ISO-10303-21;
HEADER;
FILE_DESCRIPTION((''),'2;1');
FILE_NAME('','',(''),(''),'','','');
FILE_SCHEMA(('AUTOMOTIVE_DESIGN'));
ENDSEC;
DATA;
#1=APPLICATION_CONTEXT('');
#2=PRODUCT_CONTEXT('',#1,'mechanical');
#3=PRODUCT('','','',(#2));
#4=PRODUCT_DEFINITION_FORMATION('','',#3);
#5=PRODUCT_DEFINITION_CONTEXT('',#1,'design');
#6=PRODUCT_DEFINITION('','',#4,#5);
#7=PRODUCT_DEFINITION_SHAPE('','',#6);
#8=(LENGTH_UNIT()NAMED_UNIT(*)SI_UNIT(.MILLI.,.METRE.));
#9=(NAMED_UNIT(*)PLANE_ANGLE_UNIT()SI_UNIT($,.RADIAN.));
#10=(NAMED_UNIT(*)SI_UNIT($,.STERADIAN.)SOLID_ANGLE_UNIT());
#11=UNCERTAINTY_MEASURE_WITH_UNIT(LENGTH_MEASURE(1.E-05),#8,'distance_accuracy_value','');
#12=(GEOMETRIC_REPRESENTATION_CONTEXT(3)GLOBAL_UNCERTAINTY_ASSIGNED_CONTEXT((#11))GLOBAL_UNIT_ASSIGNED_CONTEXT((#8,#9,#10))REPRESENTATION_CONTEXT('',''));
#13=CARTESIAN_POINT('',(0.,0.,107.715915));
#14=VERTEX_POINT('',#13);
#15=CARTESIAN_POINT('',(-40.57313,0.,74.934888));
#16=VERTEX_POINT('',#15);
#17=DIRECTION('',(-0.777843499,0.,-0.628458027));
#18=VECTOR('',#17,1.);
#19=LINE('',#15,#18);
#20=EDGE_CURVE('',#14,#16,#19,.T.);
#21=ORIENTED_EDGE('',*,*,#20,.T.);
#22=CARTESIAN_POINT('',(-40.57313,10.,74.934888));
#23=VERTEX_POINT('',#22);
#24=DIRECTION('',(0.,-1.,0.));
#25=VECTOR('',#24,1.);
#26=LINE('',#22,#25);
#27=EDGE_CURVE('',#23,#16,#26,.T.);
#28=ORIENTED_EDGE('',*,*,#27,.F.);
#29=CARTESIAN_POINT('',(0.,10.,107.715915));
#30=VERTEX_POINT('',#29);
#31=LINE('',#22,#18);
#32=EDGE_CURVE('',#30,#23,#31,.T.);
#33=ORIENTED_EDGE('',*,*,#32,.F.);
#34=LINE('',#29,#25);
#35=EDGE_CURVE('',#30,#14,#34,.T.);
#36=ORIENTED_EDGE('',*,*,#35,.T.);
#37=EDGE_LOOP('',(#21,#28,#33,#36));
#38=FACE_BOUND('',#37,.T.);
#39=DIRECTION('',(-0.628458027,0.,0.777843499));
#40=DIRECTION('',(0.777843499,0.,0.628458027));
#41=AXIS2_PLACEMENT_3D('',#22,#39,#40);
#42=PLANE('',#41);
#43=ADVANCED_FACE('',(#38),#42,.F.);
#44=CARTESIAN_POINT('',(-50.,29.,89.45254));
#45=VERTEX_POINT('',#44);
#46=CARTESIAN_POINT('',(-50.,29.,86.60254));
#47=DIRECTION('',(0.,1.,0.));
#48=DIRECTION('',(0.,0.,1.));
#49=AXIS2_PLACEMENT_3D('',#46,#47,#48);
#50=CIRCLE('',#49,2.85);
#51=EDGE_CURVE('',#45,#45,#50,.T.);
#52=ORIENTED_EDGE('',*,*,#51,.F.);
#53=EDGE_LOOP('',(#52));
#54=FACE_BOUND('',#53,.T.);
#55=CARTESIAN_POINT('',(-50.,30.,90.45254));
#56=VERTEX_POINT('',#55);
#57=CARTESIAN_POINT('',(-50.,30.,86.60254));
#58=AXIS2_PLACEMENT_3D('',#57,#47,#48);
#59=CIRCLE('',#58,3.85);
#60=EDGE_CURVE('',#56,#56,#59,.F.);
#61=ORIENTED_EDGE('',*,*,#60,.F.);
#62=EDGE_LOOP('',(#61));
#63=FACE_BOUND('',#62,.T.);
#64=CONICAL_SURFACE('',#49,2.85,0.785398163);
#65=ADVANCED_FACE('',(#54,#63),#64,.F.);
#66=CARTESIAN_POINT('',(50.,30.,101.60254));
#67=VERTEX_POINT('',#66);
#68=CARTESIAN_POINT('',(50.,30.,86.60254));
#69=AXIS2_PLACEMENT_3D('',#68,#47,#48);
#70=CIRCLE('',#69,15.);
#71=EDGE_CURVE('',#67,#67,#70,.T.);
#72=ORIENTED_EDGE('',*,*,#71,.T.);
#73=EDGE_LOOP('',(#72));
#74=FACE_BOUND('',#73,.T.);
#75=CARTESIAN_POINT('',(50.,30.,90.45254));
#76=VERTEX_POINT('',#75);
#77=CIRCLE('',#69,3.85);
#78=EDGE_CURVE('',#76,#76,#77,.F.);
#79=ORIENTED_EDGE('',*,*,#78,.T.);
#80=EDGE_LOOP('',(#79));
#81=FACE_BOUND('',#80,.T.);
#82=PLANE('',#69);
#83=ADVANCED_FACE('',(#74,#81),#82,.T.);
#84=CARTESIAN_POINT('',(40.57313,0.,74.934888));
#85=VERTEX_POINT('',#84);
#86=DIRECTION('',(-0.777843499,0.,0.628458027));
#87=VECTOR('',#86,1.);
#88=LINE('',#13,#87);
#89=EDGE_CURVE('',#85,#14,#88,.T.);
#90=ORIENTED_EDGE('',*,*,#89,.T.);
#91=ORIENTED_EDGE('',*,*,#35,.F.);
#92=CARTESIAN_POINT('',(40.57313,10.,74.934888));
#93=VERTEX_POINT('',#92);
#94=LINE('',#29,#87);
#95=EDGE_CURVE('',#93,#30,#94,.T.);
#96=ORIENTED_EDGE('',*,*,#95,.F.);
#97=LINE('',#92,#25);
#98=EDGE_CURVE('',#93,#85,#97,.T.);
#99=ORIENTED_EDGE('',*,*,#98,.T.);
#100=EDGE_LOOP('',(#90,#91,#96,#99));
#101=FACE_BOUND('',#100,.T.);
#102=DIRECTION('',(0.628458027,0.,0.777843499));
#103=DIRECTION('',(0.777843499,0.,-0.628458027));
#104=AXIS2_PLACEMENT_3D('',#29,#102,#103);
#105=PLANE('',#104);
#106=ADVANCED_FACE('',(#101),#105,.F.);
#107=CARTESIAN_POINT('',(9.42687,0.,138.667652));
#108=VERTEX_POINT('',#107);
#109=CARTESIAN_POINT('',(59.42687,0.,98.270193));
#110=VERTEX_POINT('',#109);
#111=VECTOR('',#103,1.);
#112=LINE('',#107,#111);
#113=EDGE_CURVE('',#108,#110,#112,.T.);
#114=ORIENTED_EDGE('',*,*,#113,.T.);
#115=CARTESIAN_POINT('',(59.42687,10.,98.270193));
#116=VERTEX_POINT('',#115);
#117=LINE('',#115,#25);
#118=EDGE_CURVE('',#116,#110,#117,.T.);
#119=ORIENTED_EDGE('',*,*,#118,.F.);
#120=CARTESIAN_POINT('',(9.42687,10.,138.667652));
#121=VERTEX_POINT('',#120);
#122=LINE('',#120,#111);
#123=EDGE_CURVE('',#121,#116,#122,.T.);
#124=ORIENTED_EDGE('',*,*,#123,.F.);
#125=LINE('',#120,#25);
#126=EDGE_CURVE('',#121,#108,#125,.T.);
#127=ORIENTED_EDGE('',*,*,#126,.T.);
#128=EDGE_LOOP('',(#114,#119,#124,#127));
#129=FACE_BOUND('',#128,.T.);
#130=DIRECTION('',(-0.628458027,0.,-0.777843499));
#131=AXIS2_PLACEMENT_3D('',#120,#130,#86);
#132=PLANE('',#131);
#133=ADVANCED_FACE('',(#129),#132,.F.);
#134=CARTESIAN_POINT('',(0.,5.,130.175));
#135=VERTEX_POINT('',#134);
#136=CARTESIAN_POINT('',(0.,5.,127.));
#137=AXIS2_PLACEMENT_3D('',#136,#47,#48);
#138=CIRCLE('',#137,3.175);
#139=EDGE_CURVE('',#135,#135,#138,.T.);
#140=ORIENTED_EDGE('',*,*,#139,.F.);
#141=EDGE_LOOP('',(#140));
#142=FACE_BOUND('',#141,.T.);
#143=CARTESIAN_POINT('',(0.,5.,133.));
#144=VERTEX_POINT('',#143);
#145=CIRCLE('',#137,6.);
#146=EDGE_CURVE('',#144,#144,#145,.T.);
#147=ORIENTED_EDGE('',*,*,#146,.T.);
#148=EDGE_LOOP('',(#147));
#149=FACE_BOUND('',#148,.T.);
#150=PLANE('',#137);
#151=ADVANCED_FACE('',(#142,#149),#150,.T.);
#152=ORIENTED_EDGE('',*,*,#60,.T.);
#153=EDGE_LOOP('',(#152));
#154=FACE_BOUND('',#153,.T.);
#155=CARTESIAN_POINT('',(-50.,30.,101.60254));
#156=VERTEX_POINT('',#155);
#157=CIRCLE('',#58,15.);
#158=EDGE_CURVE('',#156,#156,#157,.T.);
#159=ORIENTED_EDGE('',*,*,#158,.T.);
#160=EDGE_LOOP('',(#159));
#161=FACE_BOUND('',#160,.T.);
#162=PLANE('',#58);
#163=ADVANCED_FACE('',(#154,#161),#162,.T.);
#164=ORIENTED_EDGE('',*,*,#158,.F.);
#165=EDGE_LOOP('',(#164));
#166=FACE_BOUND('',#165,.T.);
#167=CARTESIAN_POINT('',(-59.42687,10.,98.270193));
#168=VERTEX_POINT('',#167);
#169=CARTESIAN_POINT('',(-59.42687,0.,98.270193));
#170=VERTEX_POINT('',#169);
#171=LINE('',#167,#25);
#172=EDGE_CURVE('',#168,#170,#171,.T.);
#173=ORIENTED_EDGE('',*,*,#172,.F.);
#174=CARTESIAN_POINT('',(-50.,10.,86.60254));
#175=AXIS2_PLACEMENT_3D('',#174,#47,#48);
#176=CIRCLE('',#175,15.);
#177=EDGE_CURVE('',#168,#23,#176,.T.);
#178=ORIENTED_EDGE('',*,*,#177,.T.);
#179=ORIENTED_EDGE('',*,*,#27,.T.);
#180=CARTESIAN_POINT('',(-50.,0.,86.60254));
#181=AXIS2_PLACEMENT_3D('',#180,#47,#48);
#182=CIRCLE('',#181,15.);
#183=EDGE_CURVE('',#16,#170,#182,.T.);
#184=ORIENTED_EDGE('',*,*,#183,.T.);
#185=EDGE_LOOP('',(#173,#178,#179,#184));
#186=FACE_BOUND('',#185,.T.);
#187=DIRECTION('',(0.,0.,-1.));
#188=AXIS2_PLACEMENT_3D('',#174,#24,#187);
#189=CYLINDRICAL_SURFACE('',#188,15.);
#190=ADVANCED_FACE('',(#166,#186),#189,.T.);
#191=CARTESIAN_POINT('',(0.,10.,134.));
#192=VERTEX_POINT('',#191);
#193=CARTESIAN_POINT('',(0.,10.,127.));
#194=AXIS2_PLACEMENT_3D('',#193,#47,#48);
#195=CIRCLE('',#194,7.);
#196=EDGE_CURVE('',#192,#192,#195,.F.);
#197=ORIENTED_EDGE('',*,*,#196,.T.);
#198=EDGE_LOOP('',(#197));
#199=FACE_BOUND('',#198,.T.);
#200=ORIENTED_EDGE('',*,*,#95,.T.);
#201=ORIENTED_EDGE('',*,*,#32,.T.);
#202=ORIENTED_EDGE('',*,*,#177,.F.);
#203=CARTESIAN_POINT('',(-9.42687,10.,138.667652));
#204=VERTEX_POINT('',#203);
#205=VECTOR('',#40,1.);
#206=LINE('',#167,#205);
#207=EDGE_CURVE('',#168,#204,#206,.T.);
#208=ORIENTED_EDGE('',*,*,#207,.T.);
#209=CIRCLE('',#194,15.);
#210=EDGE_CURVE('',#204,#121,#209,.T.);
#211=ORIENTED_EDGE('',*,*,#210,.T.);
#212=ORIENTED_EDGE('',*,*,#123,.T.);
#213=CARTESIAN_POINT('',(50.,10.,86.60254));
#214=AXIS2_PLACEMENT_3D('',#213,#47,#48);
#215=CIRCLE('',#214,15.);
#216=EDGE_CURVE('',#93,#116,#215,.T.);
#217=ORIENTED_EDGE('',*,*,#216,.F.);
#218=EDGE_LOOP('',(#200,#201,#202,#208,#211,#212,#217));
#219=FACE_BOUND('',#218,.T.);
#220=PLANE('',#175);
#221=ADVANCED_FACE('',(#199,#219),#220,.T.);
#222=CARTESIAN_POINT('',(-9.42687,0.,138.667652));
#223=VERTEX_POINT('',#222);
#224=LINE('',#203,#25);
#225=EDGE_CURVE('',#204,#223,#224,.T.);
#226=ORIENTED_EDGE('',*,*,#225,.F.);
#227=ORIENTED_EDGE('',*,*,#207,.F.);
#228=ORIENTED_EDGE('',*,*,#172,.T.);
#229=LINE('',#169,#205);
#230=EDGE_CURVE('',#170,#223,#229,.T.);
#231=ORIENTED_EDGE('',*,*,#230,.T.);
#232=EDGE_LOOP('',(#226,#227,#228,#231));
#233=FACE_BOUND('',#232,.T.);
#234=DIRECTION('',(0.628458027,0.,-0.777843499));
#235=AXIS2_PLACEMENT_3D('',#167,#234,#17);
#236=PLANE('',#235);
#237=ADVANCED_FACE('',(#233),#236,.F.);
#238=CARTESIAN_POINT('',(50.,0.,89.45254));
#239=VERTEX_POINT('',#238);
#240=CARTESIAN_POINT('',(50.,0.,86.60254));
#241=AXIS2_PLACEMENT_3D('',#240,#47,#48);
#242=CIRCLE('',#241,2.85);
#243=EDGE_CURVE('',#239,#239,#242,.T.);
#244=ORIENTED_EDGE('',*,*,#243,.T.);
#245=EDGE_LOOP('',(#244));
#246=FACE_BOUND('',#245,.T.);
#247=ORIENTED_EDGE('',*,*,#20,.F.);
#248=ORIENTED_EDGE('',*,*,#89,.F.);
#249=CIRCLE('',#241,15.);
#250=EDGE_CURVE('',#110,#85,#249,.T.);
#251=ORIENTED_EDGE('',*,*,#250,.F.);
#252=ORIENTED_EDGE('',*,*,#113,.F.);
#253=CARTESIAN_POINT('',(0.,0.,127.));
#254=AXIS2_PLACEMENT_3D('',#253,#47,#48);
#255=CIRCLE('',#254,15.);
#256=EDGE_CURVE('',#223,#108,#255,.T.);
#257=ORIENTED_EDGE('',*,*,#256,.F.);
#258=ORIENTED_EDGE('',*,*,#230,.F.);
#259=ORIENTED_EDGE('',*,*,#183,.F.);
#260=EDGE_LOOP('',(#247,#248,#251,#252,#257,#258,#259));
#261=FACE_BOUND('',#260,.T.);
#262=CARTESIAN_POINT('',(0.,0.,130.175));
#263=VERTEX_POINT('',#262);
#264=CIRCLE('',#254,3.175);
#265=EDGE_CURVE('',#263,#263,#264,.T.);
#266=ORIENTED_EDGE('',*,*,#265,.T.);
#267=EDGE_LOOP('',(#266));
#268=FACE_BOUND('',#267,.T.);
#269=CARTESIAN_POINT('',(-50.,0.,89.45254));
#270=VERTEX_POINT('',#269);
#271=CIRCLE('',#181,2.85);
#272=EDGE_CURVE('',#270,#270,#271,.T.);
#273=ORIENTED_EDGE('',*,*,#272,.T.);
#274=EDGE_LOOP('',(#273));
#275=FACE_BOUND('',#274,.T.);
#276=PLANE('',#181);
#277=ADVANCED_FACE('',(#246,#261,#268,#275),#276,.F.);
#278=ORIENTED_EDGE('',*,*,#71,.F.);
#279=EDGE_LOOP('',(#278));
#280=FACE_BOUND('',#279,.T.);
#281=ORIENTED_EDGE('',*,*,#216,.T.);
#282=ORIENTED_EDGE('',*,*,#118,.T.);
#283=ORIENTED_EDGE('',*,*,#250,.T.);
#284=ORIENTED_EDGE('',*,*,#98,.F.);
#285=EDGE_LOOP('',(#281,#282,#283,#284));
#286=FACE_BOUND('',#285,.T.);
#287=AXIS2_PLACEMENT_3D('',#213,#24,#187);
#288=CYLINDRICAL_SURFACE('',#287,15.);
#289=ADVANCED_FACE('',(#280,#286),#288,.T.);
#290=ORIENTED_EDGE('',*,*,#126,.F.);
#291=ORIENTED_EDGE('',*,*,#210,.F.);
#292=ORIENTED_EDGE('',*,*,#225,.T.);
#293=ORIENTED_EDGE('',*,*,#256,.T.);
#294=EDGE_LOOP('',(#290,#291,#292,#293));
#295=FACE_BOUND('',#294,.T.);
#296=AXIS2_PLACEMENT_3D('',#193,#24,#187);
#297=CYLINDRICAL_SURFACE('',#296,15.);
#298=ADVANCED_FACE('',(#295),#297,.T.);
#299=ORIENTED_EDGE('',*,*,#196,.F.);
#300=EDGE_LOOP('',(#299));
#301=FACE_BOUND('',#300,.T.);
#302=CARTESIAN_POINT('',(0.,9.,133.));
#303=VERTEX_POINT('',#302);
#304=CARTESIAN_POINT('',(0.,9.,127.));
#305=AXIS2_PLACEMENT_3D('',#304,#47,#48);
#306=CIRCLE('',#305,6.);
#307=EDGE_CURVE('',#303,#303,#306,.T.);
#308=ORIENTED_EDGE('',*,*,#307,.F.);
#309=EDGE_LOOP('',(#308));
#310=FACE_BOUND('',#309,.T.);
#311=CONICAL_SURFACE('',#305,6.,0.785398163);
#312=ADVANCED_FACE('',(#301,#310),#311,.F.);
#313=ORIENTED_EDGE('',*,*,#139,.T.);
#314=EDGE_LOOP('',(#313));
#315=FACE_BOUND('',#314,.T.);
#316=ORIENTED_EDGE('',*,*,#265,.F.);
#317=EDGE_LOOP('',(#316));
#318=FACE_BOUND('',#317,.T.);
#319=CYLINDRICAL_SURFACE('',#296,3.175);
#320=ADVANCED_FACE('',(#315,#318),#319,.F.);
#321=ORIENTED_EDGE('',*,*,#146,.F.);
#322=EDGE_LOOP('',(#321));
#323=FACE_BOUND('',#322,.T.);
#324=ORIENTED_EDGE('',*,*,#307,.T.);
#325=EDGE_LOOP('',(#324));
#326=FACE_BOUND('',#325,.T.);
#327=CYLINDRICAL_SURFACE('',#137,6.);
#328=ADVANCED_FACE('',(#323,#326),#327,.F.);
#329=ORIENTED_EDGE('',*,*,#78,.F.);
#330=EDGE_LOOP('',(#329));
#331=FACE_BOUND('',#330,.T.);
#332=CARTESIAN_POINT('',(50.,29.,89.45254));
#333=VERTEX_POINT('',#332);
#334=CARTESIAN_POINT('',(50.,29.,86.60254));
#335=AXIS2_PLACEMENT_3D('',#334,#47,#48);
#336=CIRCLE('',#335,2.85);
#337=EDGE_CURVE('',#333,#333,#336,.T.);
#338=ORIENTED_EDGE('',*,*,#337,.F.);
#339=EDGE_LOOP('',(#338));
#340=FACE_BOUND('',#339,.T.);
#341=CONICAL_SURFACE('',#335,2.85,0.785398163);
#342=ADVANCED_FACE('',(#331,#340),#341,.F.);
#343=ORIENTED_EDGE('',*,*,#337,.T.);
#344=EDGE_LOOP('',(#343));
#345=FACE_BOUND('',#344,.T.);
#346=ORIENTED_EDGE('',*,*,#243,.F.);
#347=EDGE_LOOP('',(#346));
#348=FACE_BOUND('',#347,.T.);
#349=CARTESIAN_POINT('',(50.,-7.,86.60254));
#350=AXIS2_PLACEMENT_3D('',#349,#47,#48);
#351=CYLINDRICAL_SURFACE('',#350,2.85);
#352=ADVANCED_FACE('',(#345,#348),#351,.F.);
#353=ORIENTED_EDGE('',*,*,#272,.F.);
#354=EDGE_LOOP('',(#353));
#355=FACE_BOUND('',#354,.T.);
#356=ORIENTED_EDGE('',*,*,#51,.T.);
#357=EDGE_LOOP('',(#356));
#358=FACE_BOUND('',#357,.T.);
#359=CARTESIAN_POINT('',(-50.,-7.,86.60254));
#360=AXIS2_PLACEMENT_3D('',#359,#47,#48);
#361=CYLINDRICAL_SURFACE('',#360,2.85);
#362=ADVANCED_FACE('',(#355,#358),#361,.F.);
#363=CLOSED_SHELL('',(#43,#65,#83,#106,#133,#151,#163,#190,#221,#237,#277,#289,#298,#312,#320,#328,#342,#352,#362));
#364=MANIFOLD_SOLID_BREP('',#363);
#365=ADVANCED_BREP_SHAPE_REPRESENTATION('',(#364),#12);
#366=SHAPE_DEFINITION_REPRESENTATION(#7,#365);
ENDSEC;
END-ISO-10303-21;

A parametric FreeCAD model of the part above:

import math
import FreeCAD as App
import Part
import Sketcher
Q = App.Units.Quantity


def edges_at(feature, points):
    """Names of the edges that pass closest to the given points."""
    edges = feature.Shape.Edges
    near = lambda p: min(range(len(edges)), key=lambda i: edges[i].distToShape(Part.Vertex(*p))[0])
    return sorted({f"Edge{near(p) + 1}" for p in points})

doc = App.newDocument("Part")
params = doc.addObject("Spreadsheet::Sheet", "Params")
for row, (alias, value) in enumerate([
    ("sketch1_radius", "15 mm"),
    ("sketch1_diameter", "6.35 mm"),
    ("pad1_length", "10 mm"),
    ("sketch2_diameter", "30 mm"),
    ("pad2_length", "20 mm"),
    ("sketch3_diameter", "5.7 mm"),
    ("pocket1_length", "37 mm"),
    ("sketch4_diameter", "12 mm"),
    ("pocket2_length", "5 mm"),
    ("chamfer_size", "1 mm"),
], start=1):
    params.set(f"A{row}", alias)
    params.set(f"B{row}", "=" + value)
    params.setAlias(f"B{row}", alias)

body = doc.addObject("PartDesign::Body", "Body")

sketch1 = doc.addObject("Sketcher::SketchObject", "Sketch")
body.addObject(sketch1)
sketch1.AttachmentSupport = (doc.XZ_Plane, [""])
sketch1.MapMode = "FlatFace"
sketch1.addGeometry([
    Part.LineSegment(App.Vector(0, 107.7, 0), App.Vector(-40.6, 74.9, 0)),
    Part.ArcOfCircle(Part.Circle(App.Vector(-50, 86.6, 0), App.Vector(0, 0, 1), 15), math.radians(129), math.radians(309)),
    Part.LineSegment(App.Vector(-59.4, 98.3, 0), App.Vector(-9.4, 138.7, 0)),
    Part.ArcOfCircle(Part.Circle(App.Vector(0, 127, 0), App.Vector(0, 0, 1), 15), math.radians(51), math.radians(129)),
    Part.LineSegment(App.Vector(9.4, 138.7, 0), App.Vector(59.4, 98.3, 0)),
    Part.ArcOfCircle(Part.Circle(App.Vector(50, 86.6, 0), App.Vector(0, 0, 1), 15), math.radians(-129), math.radians(51)),
    Part.LineSegment(App.Vector(40.6, 74.9, 0), App.Vector(0, 107.7, 0)),
    Part.Circle(App.Vector(0, 127, 0), App.Vector(0, 0, 1), 3.2),
], False)
sketch1.addConstraint([
    Sketcher.Constraint("Tangent", 0, 2, 1, 2),
    Sketcher.Constraint("Tangent", 1, 1, 2, 1),
    Sketcher.Constraint("Tangent", 2, 2, 3, 2),
    Sketcher.Constraint("Tangent", 3, 1, 4, 1),
    Sketcher.Constraint("Tangent", 4, 2, 5, 2),
    Sketcher.Constraint("Tangent", 5, 1, 6, 1),
    Sketcher.Constraint("Coincident", 6, 2, 0, 1),
    Sketcher.Constraint("Coincident", 7, 3, 3, 3),
    Sketcher.Constraint("Equal", 1, 3),
    Sketcher.Constraint("Equal", 3, 5),
    Sketcher.Constraint("Symmetric", 1, 3, 5, 3, -2),
    Sketcher.Constraint("PointOnObject", 3, 3, -2),
    Sketcher.Constraint("PointOnObject", 6, 2, -2),
    Sketcher.Constraint("Parallel", 0, 2),
    Sketcher.Constraint("Radius", 1, Q("15 mm")),
    Sketcher.Constraint("Diameter", 7, Q("6.35 mm")),
    Sketcher.Constraint("DistanceX", 1, 3, -1, 1, Q("50 mm")),
    Sketcher.Constraint("DistanceY", -1, 1, 3, 3, Q("127 mm")),
    Sketcher.Constraint("DistanceY", -1, 1, 1, 3, Q("86.60254 mm")),
])
sketch1.setExpression("Constraints[14]", "Params.sketch1_radius")
sketch1.setExpression("Constraints[15]", "Params.sketch1_diameter")
pad1 = doc.addObject("PartDesign::Pad", "Pad")
body.addObject(pad1)
pad1.Profile = sketch1
pad1.setExpression("Length", "Params.pad1_length")
pad1.Reversed = True

sketch2 = doc.addObject("Sketcher::SketchObject", "Sketch001")
body.addObject(sketch2)
sketch2.AttachmentSupport = (doc.XZ_Plane, [""])
sketch2.MapMode = "FlatFace"
sketch2.AttachmentOffset = App.Placement(App.Vector(0, 0, -10), App.Rotation())
sketch2.addGeometry([
    Part.Circle(App.Vector(-50, 87, 0), App.Vector(0, 0, 1), 15),
    Part.Circle(App.Vector(50, 87, 0), App.Vector(0, 0, 1), 15),
], False)
sketch2.addConstraint([
    Sketcher.Constraint("Equal", 0, 1),
    Sketcher.Constraint("Symmetric", 0, 3, 1, 3, -2),
    Sketcher.Constraint("Diameter", 0, Q("30 mm")),
    Sketcher.Constraint("DistanceX", 0, 3, -1, 1, Q("50 mm")),
    Sketcher.Constraint("DistanceY", -1, 1, 0, 3, Q("86.60254 mm")),
])
sketch2.setExpression("Constraints[2]", "Params.sketch2_diameter")
pad2 = doc.addObject("PartDesign::Pad", "Pad001")
body.addObject(pad2)
pad2.Profile = sketch2
pad2.setExpression("Length", "Params.pad2_length")
pad2.Reversed = True

sketch3 = doc.addObject("Sketcher::SketchObject", "Sketch002")
body.addObject(sketch3)
sketch3.AttachmentSupport = (doc.XZ_Plane, [""])
sketch3.MapMode = "FlatFace"
sketch3.AttachmentOffset = App.Placement(App.Vector(0, 0, -30), App.Rotation())
sketch3.addGeometry([
    Part.Circle(App.Vector(-50, 86.6, 0), App.Vector(0, 0, 1), 2.9),
    Part.Circle(App.Vector(50, 86.6, 0), App.Vector(0, 0, 1), 2.9),
], False)
sketch3.addConstraint([
    Sketcher.Constraint("Equal", 0, 1),
    Sketcher.Constraint("Symmetric", 0, 3, 1, 3, -2),
    Sketcher.Constraint("Diameter", 0, Q("5.7 mm")),
    Sketcher.Constraint("DistanceX", 0, 3, -1, 1, Q("50 mm")),
    Sketcher.Constraint("DistanceY", -1, 1, 0, 3, Q("86.60254 mm")),
])
sketch3.setExpression("Constraints[2]", "Params.sketch3_diameter")
pocket1 = doc.addObject("PartDesign::Pocket", "Pocket")
body.addObject(pocket1)
pocket1.Profile = sketch3
pocket1.setExpression("Length", "Params.pocket1_length")
pocket1.Reversed = True

sketch4 = doc.addObject("Sketcher::SketchObject", "Sketch003")
body.addObject(sketch4)
sketch4.AttachmentSupport = (doc.XZ_Plane, [""])
sketch4.MapMode = "FlatFace"
sketch4.AttachmentOffset = App.Placement(App.Vector(0, 0, -10), App.Rotation())
sketch4.addGeometry(Part.Circle(App.Vector(0, 127, 0), App.Vector(0, 0, 1), 6), False)
sketch4.addConstraint([
    Sketcher.Constraint("PointOnObject", 0, 3, -2),
    Sketcher.Constraint("Diameter", 0, Q("12 mm")),
    Sketcher.Constraint("DistanceY", -1, 1, 0, 3, Q("127 mm")),
])
sketch4.setExpression("Constraints[1]", "Params.sketch4_diameter")
pocket2 = doc.addObject("PartDesign::Pocket", "Pocket001")
body.addObject(pocket2)
pocket2.Profile = sketch4
pocket2.setExpression("Length", "Params.pocket2_length")
pocket2.Reversed = True
doc.recompute()

chamfer = doc.addObject("PartDesign::Chamfer", "Chamfer")
body.addObject(chamfer)
chamfer.Base = (pocket2, edges_at(pocket2, [(-52.85, 30, 86.603), (47.15, 30, 86.603), (-6, 10, 127)]))
chamfer.setExpression("Size", "Params.chamfer_size")

doc.recompute()
